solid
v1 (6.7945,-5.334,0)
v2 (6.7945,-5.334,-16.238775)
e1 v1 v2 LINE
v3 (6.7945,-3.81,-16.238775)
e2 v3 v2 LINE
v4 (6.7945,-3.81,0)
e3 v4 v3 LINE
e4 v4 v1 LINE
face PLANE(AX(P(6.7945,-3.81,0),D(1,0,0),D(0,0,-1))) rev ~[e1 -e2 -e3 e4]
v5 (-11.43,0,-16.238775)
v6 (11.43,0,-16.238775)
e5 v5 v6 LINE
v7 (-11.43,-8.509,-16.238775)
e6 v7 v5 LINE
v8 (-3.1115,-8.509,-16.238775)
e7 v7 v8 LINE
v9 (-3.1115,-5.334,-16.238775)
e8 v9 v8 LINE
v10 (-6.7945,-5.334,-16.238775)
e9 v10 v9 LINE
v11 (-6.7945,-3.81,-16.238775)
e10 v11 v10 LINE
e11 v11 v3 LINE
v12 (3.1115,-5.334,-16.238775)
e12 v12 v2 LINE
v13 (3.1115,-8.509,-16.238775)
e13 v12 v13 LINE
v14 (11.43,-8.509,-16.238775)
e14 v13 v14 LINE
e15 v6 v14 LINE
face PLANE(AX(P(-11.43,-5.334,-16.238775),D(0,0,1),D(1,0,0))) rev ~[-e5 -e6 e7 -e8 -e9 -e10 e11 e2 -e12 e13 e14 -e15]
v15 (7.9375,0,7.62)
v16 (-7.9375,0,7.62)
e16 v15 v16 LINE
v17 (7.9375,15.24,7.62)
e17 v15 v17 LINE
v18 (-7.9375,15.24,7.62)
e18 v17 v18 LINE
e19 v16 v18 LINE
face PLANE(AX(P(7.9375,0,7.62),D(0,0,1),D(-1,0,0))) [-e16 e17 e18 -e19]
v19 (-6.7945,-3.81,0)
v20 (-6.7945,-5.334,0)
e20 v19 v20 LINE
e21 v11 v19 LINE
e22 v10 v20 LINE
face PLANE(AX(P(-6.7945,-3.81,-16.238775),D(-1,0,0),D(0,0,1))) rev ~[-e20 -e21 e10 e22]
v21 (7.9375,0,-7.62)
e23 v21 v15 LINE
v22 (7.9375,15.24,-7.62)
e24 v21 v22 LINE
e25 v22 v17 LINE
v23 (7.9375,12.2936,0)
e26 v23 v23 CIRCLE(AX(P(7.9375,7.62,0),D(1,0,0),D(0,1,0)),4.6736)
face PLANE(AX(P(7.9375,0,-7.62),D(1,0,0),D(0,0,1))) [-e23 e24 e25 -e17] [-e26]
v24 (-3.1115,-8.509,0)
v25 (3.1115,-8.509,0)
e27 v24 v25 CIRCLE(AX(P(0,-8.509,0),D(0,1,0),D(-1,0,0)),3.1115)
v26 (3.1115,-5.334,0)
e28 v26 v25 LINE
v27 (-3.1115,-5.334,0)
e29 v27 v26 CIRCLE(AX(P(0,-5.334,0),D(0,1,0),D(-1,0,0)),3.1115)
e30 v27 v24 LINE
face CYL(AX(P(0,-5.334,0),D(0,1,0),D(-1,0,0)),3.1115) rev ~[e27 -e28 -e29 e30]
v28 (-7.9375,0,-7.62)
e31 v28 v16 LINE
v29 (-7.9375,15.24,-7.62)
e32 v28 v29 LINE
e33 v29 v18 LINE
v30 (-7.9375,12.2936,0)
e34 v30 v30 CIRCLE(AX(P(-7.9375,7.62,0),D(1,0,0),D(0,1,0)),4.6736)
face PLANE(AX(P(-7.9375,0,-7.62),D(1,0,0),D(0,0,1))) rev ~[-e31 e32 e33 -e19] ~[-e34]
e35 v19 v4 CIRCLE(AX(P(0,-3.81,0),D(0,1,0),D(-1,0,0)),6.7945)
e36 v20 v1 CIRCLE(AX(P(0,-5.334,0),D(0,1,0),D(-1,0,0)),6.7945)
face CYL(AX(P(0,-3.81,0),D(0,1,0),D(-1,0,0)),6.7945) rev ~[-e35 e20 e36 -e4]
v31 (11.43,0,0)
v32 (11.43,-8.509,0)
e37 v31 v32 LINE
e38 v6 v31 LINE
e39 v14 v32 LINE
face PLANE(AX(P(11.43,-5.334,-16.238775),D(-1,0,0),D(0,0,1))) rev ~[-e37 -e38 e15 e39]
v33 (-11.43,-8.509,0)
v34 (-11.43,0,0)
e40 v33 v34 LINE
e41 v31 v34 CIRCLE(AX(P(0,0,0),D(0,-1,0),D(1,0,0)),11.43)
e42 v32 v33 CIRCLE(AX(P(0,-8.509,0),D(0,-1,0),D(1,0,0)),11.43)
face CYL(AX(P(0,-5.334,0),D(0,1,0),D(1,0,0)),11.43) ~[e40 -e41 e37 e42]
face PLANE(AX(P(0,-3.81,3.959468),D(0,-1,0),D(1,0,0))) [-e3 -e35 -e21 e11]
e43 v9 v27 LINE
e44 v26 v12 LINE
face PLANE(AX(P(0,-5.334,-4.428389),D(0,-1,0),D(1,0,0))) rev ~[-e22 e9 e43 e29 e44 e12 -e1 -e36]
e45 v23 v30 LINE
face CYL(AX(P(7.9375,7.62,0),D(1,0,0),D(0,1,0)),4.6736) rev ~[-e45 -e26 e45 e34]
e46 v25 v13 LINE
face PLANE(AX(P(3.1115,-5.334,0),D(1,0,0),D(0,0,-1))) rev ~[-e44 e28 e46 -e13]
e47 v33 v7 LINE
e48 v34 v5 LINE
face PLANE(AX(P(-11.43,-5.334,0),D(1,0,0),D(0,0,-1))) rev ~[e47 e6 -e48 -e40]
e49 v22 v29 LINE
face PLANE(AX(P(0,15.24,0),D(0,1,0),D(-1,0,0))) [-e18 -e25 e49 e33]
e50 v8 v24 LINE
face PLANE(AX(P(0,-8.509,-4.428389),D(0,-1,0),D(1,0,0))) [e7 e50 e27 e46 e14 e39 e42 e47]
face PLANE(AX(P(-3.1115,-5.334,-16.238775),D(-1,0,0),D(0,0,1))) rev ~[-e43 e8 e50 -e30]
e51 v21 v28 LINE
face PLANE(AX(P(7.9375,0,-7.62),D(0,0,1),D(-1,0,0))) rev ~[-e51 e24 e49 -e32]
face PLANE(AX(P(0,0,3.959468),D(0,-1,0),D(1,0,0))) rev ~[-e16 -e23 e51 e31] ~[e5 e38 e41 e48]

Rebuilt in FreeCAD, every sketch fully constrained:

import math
import FreeCAD as App
import Part
import Sketcher
from FreeCAD import Vector
Q = App.Units.Quantity

doc = App.newDocument("Part")
body = doc.addObject("PartDesign::Body", "Body")

sketch1 = doc.addObject("Sketcher::SketchObject", "Sketch")
body.addObject(sketch1)
sketch1.AttachmentSupport = (doc.XZ_Plane, [""])
sketch1.MapMode = "FlatFace"
sketch1.addGeometry([
    Part.ArcOfCircle(Part.Circle(Vector(0, 0, 0), Vector(0, 0, 1), 11), math.radians(0), math.radians(180)),
    Part.LineSegment(Vector(-11, 0, 0), Vector(-11, -16, 0)),
    Part.LineSegment(Vector(-11, -16, 0), Vector(11, -16, 0)),
    Part.LineSegment(Vector(11, -16, 0), Vector(11, 0, 0)),
], False)
sketch1.addConstraint([
    Sketcher.Constraint("Tangent", 0, 2, 1, 1),
    Sketcher.Constraint("Coincident", 1, 2, 2, 1),
    Sketcher.Constraint("Coincident", 2, 2, 3, 1),
    Sketcher.Constraint("Tangent", 3, 2, 0, 1),
    Sketcher.Constraint("Vertical", 1),
    Sketcher.Constraint("Horizontal", 2),
    Sketcher.Constraint("Vertical", 3),
    Sketcher.Constraint("Coincident", 0, 3, -1, 1),
    Sketcher.Constraint("Radius", 0, Q("0.45 in")),
    Sketcher.Constraint("DistanceY", 1, 2, 1, 1, Q("16.238775 mm")),
])
pad1 = doc.addObject("PartDesign::Pad", "Pad")
body.addObject(pad1)
pad1.Profile = sketch1
pad1.Length = Q("0.15 in")

sketch2 = doc.addObject("Sketcher::SketchObject", "Sketch001")
body.addObject(sketch2)
sketch2.AttachmentSupport = (doc.XZ_Plane, [""])
sketch2.MapMode = "FlatFace"
sketch2.AttachmentOffset = App.Placement(Vector(0, 0, 0.15 * 25.4), App.Rotation())
sketch2.addGeometry([
    Part.LineSegment(Vector(11.4, -16.2, 0), Vector(11.4, 0, 0)),
    Part.ArcOfCircle(Part.Circle(Vector(0, 0, 0), Vector(0, 0, 1), 11.4), math.radians(0), math.radians(180)),
    Part.LineSegment(Vector(-11.4, 0, 0), Vector(-11.4, -16.2, 0)),
    Part.LineSegment(Vector(-11.4, -16.2, 0), Vector(-6.8, -16.2, 0)),
    Part.LineSegment(Vector(-6.8, -16.2, 0), Vector(-6.8, 0, 0)),
    Part.ArcOfCircle(Part.Circle(Vector(0, 0, 0), Vector(0, 0, 1), 6.8), math.radians(0), math.radians(180)),
    Part.LineSegment(Vector(6.8, 0, 0), Vector(6.8, -16.2, 0)),
    Part.LineSegment(Vector(6.8, -16.2, 0), Vector(11.4, -16.2, 0)),
], False)
sketch2.addConstraint([
    Sketcher.Constraint("Tangent", 0, 2, 1, 1),
    Sketcher.Constraint("Tangent", 1, 2, 2, 1),
    Sketcher.Constraint("Coincident", 2, 2, 3, 1),
    Sketcher.Constraint("Coincident", 3, 2, 4, 1),
    Sketcher.Constraint("Tangent", 4, 2, 5, 2),
    Sketcher.Constraint("Tangent", 5, 1, 6, 1),
    Sketcher.Constraint("Coincident", 6, 2, 7, 1),
    Sketcher.Constraint("Coincident", 7, 2, 0, 1),
    Sketcher.Constraint("Vertical", 0),
    Sketcher.Constraint("Vertical", 2),
    Sketcher.Constraint("Horizontal", 3),
    Sketcher.Constraint("Vertical", 4),
    Sketcher.Constraint("Vertical", 6),
    Sketcher.Constraint("Horizontal", 7),
    Sketcher.Constraint("Coincident", 1, 3, -1, 1),
    Sketcher.Constraint("Coincident", 5, 3, -1, 1),
    Sketcher.Constraint("Horizontal", 3, 2, 6, 2),
    Sketcher.Constraint("Radius", 1, Q("0.45 in")),
    Sketcher.Constraint("Radius", 5, Q("0.2675 in")),
    Sketcher.Constraint("DistanceY", 0, 1, 0, 2, Q("16.238775 mm")),
])
pad2 = doc.addObject("PartDesign::Pad", "Pad001")
body.addObject(pad2)
pad2.Profile = sketch2
pad2.Length = Q("0.06 in")

sketch3 = doc.addObject("Sketcher::SketchObject", "Sketch002")
body.addObject(sketch3)
sketch3.AttachmentSupport = (doc.XZ_Plane, [""])
sketch3.MapMode = "FlatFace"
sketch3.AttachmentOffset = App.Placement(Vector(0, 0, 0.21 * 25.4), App.Rotation())
sketch3.addGeometry([
    Part.LineSegment(Vector(-3.1, -16.2, 0), Vector(-3.1, 0, 0)),
    Part.ArcOfCircle(Part.Circle(Vector(0, 0, 0), Vector(0, 0, 1), 3.1), math.radians(0), math.radians(180)),
    Part.LineSegment(Vector(3.1, 0, 0), Vector(3.1, -16.2, 0)),
    Part.LineSegment(Vector(3.1, -16.2, 0), Vector(11.4, -16.2, 0)),
    Part.LineSegment(Vector(11.4, -16.2, 0), Vector(11.4, 0, 0)),
    Part.ArcOfCircle(Part.Circle(Vector(0, 0, 0), Vector(0, 0, 1), 11.4), math.radians(0), math.radians(180)),
    Part.LineSegment(Vector(-11.4, 0, 0), Vector(-11.4, -16.2, 0)),
    Part.LineSegment(Vector(-11.4, -16.2, 0), Vector(-3.1, -16.2, 0)),
], False)
sketch3.addConstraint([
    Sketcher.Constraint("Tangent", 0, 2, 1, 2),
    Sketcher.Constraint("Tangent", 1, 1, 2, 1),
    Sketcher.Constraint("Coincident", 2, 2, 3, 1),
    Sketcher.Constraint("Coincident", 3, 2, 4, 1),
    Sketcher.Constraint("Tangent", 4, 2, 5, 1),
    Sketcher.Constraint("Tangent", 5, 2, 6, 1),
    Sketcher.Constraint("Coincident", 6, 2, 7, 1),
    Sketcher.Constraint("Coincident", 7, 2, 0, 1),
    Sketcher.Constraint("Vertical", 0),
    Sketcher.Constraint("Vertical", 2),
    Sketcher.Constraint("Horizontal", 3),
    Sketcher.Constraint("Vertical", 4),
    Sketcher.Constraint("Vertical", 6),
    Sketcher.Constraint("Horizontal", 7),
    Sketcher.Constraint("Coincident", 1, 3, -1, 1),
    Sketcher.Constraint("Coincident", 5, 3, -1, 1),
    Sketcher.Constraint("Horizontal", 3, 2, 6, 2),
    Sketcher.Constraint("Radius", 5, Q("0.45 in")),
    Sketcher.Constraint("Radius", 1, Q("0.1225 in")),
    Sketcher.Constraint("DistanceY", 0, 1, 0, 2, Q("16.238775 mm")),
])
pad3 = doc.addObject("PartDesign::Pad", "Pad002")
body.addObject(pad3)
pad3.Profile = sketch3
pad3.Length = Q("0.125 in")

sketch4 = doc.addObject("Sketcher::SketchObject", "Sketch003")
body.addObject(sketch4)
sketch4.AttachmentSupport = (doc.XZ_Plane, [""])
sketch4.MapMode = "FlatFace"
sketch4.addGeometry([
    Part.LineSegment(Vector(8, 8, 0), Vector(8, -8, 0)),
    Part.LineSegment(Vector(8, -8, 0), Vector(-8, -8, 0)),
    Part.LineSegment(Vector(-8, -8, 0), Vector(-8, 8, 0)),
    Part.LineSegment(Vector(-8, 8, 0), Vector(8, 8, 0)),
], False)
sketch4.addConstraint([
    Sketcher.Constraint("Coincident", 0, 2, 1, 1),
    Sketcher.Constraint("Coincident", 1, 2, 2, 1),
    Sketcher.Constraint("Coincident", 2, 2, 3, 1),
    Sketcher.Constraint("Coincident", 3, 2, 0, 1),
    Sketcher.Constraint("Vertical", 0),
    Sketcher.Constraint("Horizontal", 1),
    Sketcher.Constraint("Vertical", 2),
    Sketcher.Constraint("Horizontal", 3),
    Sketcher.Constraint("Symmetric", 0, 2, 2, 2, -1, 1),
    Sketcher.Constraint("DistanceY", 0, 2, 0, 1, Q("0.6 in")),
    Sketcher.Constraint("DistanceX", 1, 2, 1, 1, Q("0.625 in")),
])
pad4 = doc.addObject("PartDesign::Pad", "Pad003")
body.addObject(pad4)
pad4.Profile = sketch4
pad4.Length = Q("0.6 in")
pad4.Reversed = True

sketch5 = doc.addObject("Sketcher::SketchObject", "Sketch004")
body.addObject(sketch5)
sketch5.AttachmentSupport = (doc.YZ_Plane, [""])
sketch5.MapMode = "FlatFace"
sketch5.AttachmentOffset = App.Placement(Vector(0, 0, 0.3125 * 25.4), App.Rotation())
sketch5.addGeometry(Part.Circle(Vector(7.6, 0, 0), Vector(0, 0, 1), 4.7), False)
sketch5.addConstraint([
    Sketcher.Constraint("PointOnObject", 0, 3, -1),
    Sketcher.Constraint("Diameter", 0, Q("0.368 in")),
    Sketcher.Constraint("DistanceX", -1, 1, 0, 3, Q("0.3 in")),
])
pocket1 = doc.addObject("PartDesign::Pocket", "Pocket")
body.addObject(pocket1)
pocket1.Profile = sketch5
pocket1.Type = "ThroughAll"

doc.recompute()
